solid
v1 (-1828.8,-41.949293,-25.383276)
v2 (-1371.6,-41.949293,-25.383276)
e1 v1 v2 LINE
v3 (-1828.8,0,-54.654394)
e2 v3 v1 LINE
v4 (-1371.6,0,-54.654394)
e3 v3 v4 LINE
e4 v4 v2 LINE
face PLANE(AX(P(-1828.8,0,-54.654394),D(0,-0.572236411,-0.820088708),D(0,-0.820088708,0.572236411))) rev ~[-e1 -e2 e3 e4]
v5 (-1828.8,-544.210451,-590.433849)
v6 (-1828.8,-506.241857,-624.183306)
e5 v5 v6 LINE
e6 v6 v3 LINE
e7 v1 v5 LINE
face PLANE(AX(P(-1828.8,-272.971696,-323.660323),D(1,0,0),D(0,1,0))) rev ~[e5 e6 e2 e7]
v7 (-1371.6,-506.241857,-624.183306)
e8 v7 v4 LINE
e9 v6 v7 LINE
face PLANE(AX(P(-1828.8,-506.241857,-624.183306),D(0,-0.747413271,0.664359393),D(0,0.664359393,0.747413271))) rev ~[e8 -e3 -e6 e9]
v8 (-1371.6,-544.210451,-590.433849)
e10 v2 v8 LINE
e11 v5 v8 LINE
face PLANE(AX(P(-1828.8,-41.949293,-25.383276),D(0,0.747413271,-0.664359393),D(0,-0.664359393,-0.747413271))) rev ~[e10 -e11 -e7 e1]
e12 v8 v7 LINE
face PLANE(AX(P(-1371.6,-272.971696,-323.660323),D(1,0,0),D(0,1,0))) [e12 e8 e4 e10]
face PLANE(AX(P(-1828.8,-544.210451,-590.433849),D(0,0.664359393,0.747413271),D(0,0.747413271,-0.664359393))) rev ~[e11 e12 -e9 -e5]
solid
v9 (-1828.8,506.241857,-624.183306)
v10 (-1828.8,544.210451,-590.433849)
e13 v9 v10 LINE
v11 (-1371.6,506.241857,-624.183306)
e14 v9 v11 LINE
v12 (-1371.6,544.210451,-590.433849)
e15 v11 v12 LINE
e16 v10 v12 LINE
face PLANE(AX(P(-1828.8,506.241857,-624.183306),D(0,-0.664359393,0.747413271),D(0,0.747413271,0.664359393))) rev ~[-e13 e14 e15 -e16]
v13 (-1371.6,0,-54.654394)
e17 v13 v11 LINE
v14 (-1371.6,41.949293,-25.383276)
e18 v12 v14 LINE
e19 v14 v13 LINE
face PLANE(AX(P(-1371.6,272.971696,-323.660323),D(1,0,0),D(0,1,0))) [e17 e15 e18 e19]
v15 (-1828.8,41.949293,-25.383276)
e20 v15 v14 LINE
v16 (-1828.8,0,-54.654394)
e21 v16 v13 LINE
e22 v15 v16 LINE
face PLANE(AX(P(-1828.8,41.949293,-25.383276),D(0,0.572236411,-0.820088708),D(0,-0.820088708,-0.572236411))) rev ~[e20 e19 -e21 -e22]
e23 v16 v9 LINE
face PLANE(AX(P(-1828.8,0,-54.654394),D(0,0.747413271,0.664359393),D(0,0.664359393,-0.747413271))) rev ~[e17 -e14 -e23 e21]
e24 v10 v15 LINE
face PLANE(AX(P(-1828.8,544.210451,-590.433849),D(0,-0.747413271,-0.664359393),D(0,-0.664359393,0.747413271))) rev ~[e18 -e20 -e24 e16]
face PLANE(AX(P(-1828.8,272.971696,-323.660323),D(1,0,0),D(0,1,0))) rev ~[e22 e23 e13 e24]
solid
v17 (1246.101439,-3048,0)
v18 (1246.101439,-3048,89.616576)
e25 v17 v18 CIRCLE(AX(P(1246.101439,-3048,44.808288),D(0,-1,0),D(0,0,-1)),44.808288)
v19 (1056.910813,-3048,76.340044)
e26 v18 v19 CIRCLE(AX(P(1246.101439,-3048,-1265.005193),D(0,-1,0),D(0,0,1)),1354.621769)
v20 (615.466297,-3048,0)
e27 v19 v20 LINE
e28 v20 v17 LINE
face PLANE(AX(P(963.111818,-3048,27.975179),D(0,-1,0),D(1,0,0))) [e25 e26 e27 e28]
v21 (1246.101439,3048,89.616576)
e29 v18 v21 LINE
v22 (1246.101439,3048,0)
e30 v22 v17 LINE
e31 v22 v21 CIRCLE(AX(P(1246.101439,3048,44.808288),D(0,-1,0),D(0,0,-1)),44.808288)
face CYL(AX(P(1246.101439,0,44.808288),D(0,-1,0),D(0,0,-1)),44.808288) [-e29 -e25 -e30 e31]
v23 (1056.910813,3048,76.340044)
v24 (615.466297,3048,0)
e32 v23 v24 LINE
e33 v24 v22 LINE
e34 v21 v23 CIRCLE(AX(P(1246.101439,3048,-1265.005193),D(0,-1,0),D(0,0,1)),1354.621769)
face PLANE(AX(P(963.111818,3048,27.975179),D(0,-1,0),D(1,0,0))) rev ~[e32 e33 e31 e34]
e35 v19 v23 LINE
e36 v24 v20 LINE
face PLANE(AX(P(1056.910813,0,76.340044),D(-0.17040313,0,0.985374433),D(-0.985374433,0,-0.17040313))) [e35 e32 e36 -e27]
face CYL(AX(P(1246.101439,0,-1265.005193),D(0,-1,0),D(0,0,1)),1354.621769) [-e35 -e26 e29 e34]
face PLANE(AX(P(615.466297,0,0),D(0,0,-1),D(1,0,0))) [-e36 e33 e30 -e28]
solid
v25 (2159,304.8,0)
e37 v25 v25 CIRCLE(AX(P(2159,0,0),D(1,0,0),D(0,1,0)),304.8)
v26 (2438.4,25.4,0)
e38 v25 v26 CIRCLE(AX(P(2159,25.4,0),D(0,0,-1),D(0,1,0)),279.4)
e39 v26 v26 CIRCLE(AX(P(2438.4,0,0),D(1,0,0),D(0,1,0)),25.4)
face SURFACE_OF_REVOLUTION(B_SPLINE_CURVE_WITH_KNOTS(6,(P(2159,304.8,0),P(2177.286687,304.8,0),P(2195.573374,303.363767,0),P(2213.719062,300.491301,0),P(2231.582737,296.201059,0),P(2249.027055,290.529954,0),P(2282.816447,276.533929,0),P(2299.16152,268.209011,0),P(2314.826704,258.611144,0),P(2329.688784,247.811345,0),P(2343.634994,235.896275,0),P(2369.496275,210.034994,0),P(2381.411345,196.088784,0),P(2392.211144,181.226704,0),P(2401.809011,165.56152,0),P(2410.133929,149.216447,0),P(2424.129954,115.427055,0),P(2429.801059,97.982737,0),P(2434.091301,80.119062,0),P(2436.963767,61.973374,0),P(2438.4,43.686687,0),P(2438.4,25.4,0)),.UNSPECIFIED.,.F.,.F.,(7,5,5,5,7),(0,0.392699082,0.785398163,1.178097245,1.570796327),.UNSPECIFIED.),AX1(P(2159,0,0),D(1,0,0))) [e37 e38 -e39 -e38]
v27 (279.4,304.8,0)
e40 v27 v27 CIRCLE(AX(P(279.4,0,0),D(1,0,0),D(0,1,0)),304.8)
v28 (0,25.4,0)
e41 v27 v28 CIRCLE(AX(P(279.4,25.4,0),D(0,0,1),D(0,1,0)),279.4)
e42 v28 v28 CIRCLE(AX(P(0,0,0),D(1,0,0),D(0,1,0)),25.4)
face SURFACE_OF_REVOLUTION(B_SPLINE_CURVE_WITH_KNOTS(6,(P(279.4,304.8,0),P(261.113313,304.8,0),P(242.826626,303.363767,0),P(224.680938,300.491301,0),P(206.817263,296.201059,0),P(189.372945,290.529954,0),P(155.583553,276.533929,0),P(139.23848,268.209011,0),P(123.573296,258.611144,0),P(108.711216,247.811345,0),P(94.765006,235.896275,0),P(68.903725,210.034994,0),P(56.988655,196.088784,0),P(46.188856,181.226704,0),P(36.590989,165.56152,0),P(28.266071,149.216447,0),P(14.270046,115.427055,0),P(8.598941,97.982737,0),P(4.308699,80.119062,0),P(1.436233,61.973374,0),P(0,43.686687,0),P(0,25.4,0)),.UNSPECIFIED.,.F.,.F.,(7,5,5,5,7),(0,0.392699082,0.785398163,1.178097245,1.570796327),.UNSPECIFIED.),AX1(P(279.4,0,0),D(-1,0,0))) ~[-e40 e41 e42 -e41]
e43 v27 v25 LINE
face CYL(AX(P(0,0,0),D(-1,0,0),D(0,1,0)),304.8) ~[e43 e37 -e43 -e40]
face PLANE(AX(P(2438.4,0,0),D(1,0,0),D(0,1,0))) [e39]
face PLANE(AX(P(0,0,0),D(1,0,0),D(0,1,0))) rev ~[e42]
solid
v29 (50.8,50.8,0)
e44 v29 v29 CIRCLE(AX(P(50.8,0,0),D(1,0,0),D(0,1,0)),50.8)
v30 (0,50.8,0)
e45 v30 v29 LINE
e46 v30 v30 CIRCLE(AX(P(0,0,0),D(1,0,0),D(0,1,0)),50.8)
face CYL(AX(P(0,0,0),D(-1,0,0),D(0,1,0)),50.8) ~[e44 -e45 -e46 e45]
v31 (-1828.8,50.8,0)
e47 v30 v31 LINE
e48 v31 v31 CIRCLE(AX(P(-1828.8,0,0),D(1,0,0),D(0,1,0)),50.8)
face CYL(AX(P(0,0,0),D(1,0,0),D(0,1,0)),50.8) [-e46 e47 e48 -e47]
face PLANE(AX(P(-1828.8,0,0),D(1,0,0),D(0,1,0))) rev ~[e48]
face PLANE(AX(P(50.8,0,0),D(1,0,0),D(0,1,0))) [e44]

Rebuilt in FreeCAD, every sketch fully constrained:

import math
import FreeCAD as App
import Part
import Sketcher
from FreeCAD import Vector
Q = App.Units.Quantity


def edges_at(feature, points):
    """Names of the edges that pass closest to the given points."""
    edges = feature.Shape.Edges
    near = lambda p: min(range(len(edges)), key=lambda i: edges[i].distToShape(Part.Vertex(*p))[0])
    return sorted({f"Edge{near(p) + 1}" for p in points})

doc = App.newDocument("Part")
params = doc.addObject("Spreadsheet::Sheet", "Params")
for row, (alias, value) in enumerate([
    ("sketch1_diameter", "24 in"),
    ("pad1_length", "96 in"),
    ("fillet_radius", "11 in"),
    ("pad2_length", "240 in"),
    ("sketch3_diameter", "4 in"),
    ("pad3_length", "72 in"),
    ("pad3_length2", "2 in"),
    ("sketch4_length", "30 in"),
    ("sketch4_length2", "2 in"),
    ("pad4_length", "18 in"),
    ("sketch5_length", "30 in"),
    ("sketch5_length2", "2 in"),
    ("pad5_length", "18 in"),
], start=1):
    params.set(f"A{row}", alias)
    params.set(f"B{row}", "=" + value)
    params.setAlias(f"B{row}", alias)

body = doc.addObject("PartDesign::Body", "Body")

sketch1 = body.newObject("Sketcher::SketchObject", "Sketch")
sketch1.AttachmentSupport = (doc.getObject("YZ_Plane"), [""])
sketch1.MapMode = "FlatFace"
sketch1.addGeometry(Part.Circle(Vector(0, 0, 0), Vector(0, 0, 1), 304.8), False)
sketch1.addConstraint([
    Sketcher.Constraint("Coincident", 0, 3, -1, 1),
    Sketcher.Constraint("Diameter", 0, Q("24 in")),
])
sketch1.setExpression("Constraints[1]", "Params.sketch1_diameter")
pad1 = body.newObject("PartDesign::Pad", "Pad")
pad1.Profile = sketch1
pad1.setExpression("Length", "Params.pad1_length")
doc.recompute()

fillet = body.newObject("PartDesign::Fillet", "Fillet")
fillet.Base = (pad1, edges_at(pad1, [(2438.4, -304.8, 0), (0, -304.8, 0)]))
fillet.setExpression("Radius", "Params.fillet_radius")
body2 = doc.addObject("PartDesign::Body", "Body001")

sketch2 = body2.newObject("Sketcher::SketchObject", "Sketch001")
sketch2.AttachmentSupport = (doc.getObject("XZ_Plane001"), [""])
sketch2.MapMode = "FlatFace"
sketch2.addGeometry([
    Part.LineSegment(Vector(1056.910813, 76.340044, 0), Vector(615.466297, 0, 0)),
    Part.LineSegment(Vector(615.466297, 0, 0), Vector(1246.101439, 0, 0)),
    Part.ArcOfCircle(Part.Circle(Vector(1246.101439, 44.808288, 0), Vector(0, 0, 1), 44.808288), math.radians(-90), math.radians(90)),
    Part.ArcOfCircle(Part.Circle(Vector(1246.101439, -1265.005193, 0), Vector(0, 0, 1), 1354.621769), math.radians(90), math.radians(98.02835)),
], False)
sketch2.addConstraint([
    Sketcher.Constraint("Coincident", 0, 2, 1, 1),
    Sketcher.Constraint("Tangent", 1, 2, 2, 1),
    Sketcher.Constraint("Tangent", 2, 2, 3, 1),
    Sketcher.Constraint("Coincident", 3, 2, 0, 1),
    Sketcher.Constraint("Horizontal", 1),
    Sketcher.Constraint("PointOnObject", 0, 2, -1),
    Sketcher.Constraint("Vertical", 2, 3, 3, 3),
    Sketcher.Constraint("Radius", 2, Q("44.808288 mm")),
    Sketcher.Constraint("Radius", 3, Q("1354.621769 mm")),
    Sketcher.Constraint("DistanceX", 1, 1, 1, 2, Q("630.635142 mm")),
    Sketcher.Constraint("DistanceX", -1, 1, 2, 3, Q("1246.101439 mm")),
    Sketcher.Constraint("Distance", 0, Q("447.996722 mm")),
])
pad2 = body2.newObject("PartDesign::Pad", "Pad001")
pad2.Profile = sketch2
pad2.setExpression("Length", "Params.pad2_length")
pad2.Midplane = True
body3 = doc.addObject("PartDesign::Body", "Body002")

sketch3 = body3.newObject("Sketcher::SketchObject", "Sketch002")
sketch3.AttachmentSupport = (doc.getObject("YZ_Plane002"), [""])
sketch3.MapMode = "FlatFace"
sketch3.addGeometry(Part.Circle(Vector(0, 0, 0), Vector(0, 0, 1), 50.8), False)
sketch3.addConstraint([
    Sketcher.Constraint("Coincident", 0, 3, -1, 1),
    Sketcher.Constraint("Diameter", 0, Q("4 in")),
])
sketch3.setExpression("Constraints[1]", "Params.sketch3_diameter")
pad3 = body3.newObject("PartDesign::Pad", "Pad002")
pad3.Profile = sketch3
pad3.Type = "TwoLengths"
pad3.setExpression("Length", "Params.pad3_length")
pad3.setExpression("Length2", "Params.pad3_length2")
pad3.Reversed = True
body4 = doc.addObject("PartDesign::Body", "Body003")

sketch4 = body4.newObject("Sketcher::SketchObject", "Sketch003")
sketch4.AttachmentSupport = (doc.getObject("YZ_Plane003"), [""])
sketch4.MapMode = "FlatFace"
sketch4.AttachmentOffset = App.Placement(Vector(0, 0, -72 * 25.4), App.Rotation())
sketch4.addGeometry([
    Part.LineSegment(Vector(41.949293, -25.383276, 0), Vector(0, -54.654394, 0)),
    Part.LineSegment(Vector(0, -54.654394, 0), Vector(506.241857, -624.183306, 0)),
    Part.LineSegment(Vector(506.241857, -624.183306, 0), Vector(544.210451, -590.433849, 0)),
    Part.LineSegment(Vector(544.210451, -590.433849, 0), Vector(41.949293, -25.383276, 0)),
], False)
sketch4.addConstraint([
    Sketcher.Constraint("Coincident", 0, 2, 1, 1),
    Sketcher.Constraint("Coincident", 1, 2, 2, 1),
    Sketcher.Constraint("Coincident", 2, 2, 3, 1),
    Sketcher.Constraint("Coincident", 3, 2, 0, 1),
    Sketcher.Constraint("PointOnObject", 0, 2, -2),
    Sketcher.Constraint("Perpendicular", 1, 2),
    Sketcher.Constraint("Perpendicular", 2, 3),
    Sketcher.Constraint("Distance", 1, Q("30 in")),
    Sketcher.Constraint("Distance", 2, Q("2 in")),
    Sketcher.Constraint("Distance", 0, Q("51.152141 mm")),
    Sketcher.Constraint("DistanceX", -1, 1, 2, 2, Q("544.210451 mm")),
    Sketcher.Constraint("DistanceY", 2, 2, -1, 1, Q("590.433849 mm")),
])
sketch4.setExpression("Constraints[7]", "Params.sketch4_length")
sketch4.setExpression("Constraints[8]", "Params.sketch4_length2")
pad4 = body4.newObject("PartDesign::Pad", "Pad003")
pad4.Profile = sketch4
pad4.setExpression("Length", "Params.pad4_length")
body5 = doc.addObject("PartDesign::Body", "Body004")

sketch5 = body5.newObject("Sketcher::SketchObject", "Sketch004")
sketch5.AttachmentSupport = (doc.getObject("YZ_Plane004"), [""])
sketch5.MapMode = "FlatFace"
sketch5.AttachmentOffset = App.Placement(Vector(0, 0, -72 * 25.4), App.Rotation())
sketch5.addGeometry([
    Part.LineSegment(Vector(-506.241857, -624.183306, 0), Vector(0, -54.654394, 0)),
    Part.LineSegment(Vector(0, -54.654394, 0), Vector(-41.949293, -25.383276, 0)),
    Part.LineSegment(Vector(-41.949293, -25.383276, 0), Vector(-544.210451, -590.433849, 0)),
    Part.LineSegment(Vector(-544.210451, -590.433849, 0), Vector(-506.241857, -624.183306, 0)),
], False)
sketch5.addConstraint([
    Sketcher.Constraint("Coincident", 0, 2, 1, 1),
    Sketcher.Constraint("Coincident", 1, 2, 2, 1),
    Sketcher.Constraint("Coincident", 2, 2, 3, 1),
    Sketcher.Constraint("Coincident", 3, 2, 0, 1),
    Sketcher.Constraint("PointOnObject", 0, 2, -2),
    Sketcher.Constraint("Parallel", 0, 2),
    Sketcher.Constraint("Perpendicular", 2, 3),
    Sketcher.Constraint("Distance", 0, Q("30 in")),
    Sketcher.Constraint("Distance", 3, Q("2 in")),
    Sketcher.Constraint("Distance", 1, Q("51.152141 mm")),
    Sketcher.Constraint("DistanceX", 2, 2, -1, 1, Q("544.210451 mm")),
    Sketcher.Constraint("DistanceY", 2, 2, -1, 1, Q("590.433849 mm")),
])
sketch5.setExpression("Constraints[7]", "Params.sketch5_length")
sketch5.setExpression("Constraints[8]", "Params.sketch5_length2")
pad5 = body5.newObject("PartDesign::Pad", "Pad004")
pad5.Profile = sketch5
pad5.setExpression("Length", "Params.pad5_length")

doc.recompute()
